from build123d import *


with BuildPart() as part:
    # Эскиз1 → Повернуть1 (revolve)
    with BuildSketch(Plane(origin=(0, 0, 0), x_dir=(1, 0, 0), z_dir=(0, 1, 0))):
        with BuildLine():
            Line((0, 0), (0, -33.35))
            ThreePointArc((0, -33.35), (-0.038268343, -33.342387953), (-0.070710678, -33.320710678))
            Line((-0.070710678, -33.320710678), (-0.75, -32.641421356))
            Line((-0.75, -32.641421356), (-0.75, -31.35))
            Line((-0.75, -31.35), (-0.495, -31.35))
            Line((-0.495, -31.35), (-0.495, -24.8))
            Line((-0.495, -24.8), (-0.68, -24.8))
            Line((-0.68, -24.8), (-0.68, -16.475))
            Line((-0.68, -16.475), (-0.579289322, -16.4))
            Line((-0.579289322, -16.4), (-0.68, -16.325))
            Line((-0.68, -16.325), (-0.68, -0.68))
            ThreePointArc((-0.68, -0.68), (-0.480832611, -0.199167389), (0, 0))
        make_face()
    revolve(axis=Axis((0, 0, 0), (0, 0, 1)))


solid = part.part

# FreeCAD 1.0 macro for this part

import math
import FreeCAD as App
import Part
import Sketcher

V = App.Vector
Q = App.Units.Quantity

doc = App.newDocument("Part")
body = doc.addObject("PartDesign::Body", "Body")

# Sketch on XZ plane
sketch1 = doc.addObject("Sketcher::SketchObject", "Sketch")
body.addObject(sketch1)
sketch1.AttachmentSupport = (doc.XZ_Plane, [""])
sketch1.MapMode = "FlatFace"
sketch1.addGeometry(Part.LineSegment(V(0, 33.35, 0), V(0, 0, 0)), False)
sketch1.addGeometry(Part.ArcOfCircle(Part.Circle(V(0, 0.68, 0), V(0, 0, 1), 0.68), math.radians(-180), math.radians(-90)), False)
sketch1.addGeometry(Part.LineSegment(V(-0.68, 0.68, 0), V(-0.68, 16.325, 0)), False)
sketch1.addGeometry(Part.LineSegment(V(-0.68, 16.325, 0), V(-0.579289, 16.4, 0)), False)
sketch1.addGeometry(Part.LineSegment(V(-0.579289, 16.4, 0), V(-0.68, 16.475, 0)), False)
sketch1.addGeometry(Part.LineSegment(V(-0.68, 16.475, 0), V(-0.68, 24.8, 0)), False)
sketch1.addGeometry(Part.LineSegment(V(-0.68, 24.8, 0), V(-0.495, 24.8, 0)), False)
sketch1.addGeometry(Part.LineSegment(V(-0.495, 24.8, 0), V(-0.495, 31.35, 0)), False)
sketch1.addGeometry(Part.LineSegment(V(-0.495, 31.35, 0), V(-0.75, 31.35, 0)), False)
sketch1.addGeometry(Part.LineSegment(V(-0.75, 31.35, 0), V(-0.75, 32.641421, 0)), False)
sketch1.addGeometry(Part.LineSegment(V(-0.75, 32.641421, 0), V(-0.070711, 33.320711, 0)), False)
sketch1.addGeometry(Part.ArcOfCircle(Part.Circle(V(0, 33.25, 0), V(0, 0, 1), 0.1), math.radians(90.000001), math.radians(134.999999)), False)
sketch1.addConstraint(Sketcher.Constraint("Coincident", 0, 2, 1, 2))
sketch1.addConstraint(Sketcher.Constraint("Tangent", 1, 1, 2, 1))
sketch1.addConstraint(Sketcher.Constraint("Coincident", 2, 2, 3, 1))
sketch1.addConstraint(Sketcher.Constraint("Coincident", 3, 2, 4, 1))
sketch1.addConstraint(Sketcher.Constraint("Coincident", 4, 2, 5, 1))
sketch1.addConstraint(Sketcher.Constraint("Coincident", 5, 2, 6, 1))
sketch1.addConstraint(Sketcher.Constraint("Coincident", 6, 2, 7, 1))
sketch1.addConstraint(Sketcher.Constraint("Coincident", 7, 2, 8, 1))
sketch1.addConstraint(Sketcher.Constraint("Coincident", 8, 2, 9, 1))
sketch1.addConstraint(Sketcher.Constraint("Coincident", 9, 2, 10, 1))
sketch1.addConstraint(Sketcher.Constraint("Tangent", 10, 2, 11, 2))
sketch1.addConstraint(Sketcher.Constraint("Coincident", 11, 1, 0, 1))
sketch1.addConstraint(Sketcher.Constraint("Vertical", 0))
sketch1.addConstraint(Sketcher.Constraint("Vertical", 2))
sketch1.addConstraint(Sketcher.Constraint("Vertical", 5))
sketch1.addConstraint(Sketcher.Constraint("Horizontal", 6))
sketch1.addConstraint(Sketcher.Constraint("Vertical", 7))
sketch1.addConstraint(Sketcher.Constraint("Horizontal", 8))
sketch1.addConstraint(Sketcher.Constraint("Vertical", 9))
sketch1.addConstraint(Sketcher.Constraint("Coincident", 0, 2, -1, 1))
sketch1.addConstraint(Sketcher.Constraint("PointOnObject", 1, 3, -2))
sketch1.addConstraint(Sketcher.Constraint("PointOnObject", 11, 3, -2))
sketch1.addConstraint(Sketcher.Constraint("Vertical", 2, 2, 4, 2))
sketch1.addConstraint(Sketcher.Constraint("Equal", 3, 4))
sketch1.addConstraint(Sketcher.Constraint("Radius", 11, 0.1))
sketch1.addConstraint(Sketcher.Constraint("Angle", 10, Q("45 deg")))
sketch1.addConstraint(Sketcher.Constraint("Radius", 1, 0.68))
sketch1.addConstraint(Sketcher.Constraint("DistanceY", 7, 2, 11, 1, 2.0))
sketch1.addConstraint(Sketcher.Constraint("DistanceY", 0, 2, 0, 1, 33.35))
sketch1.addConstraint(Sketcher.Constraint("DistanceY", 7, 1, 7, 2, 6.55))
sketch1.addConstraint(Sketcher.Constraint("DistanceY", -1, 1, 3, 2, 16.4))
sketch1.addConstraint(Sketcher.Constraint("DistanceX", 6, 1, 6, 2, 0.185))
sketch1.addConstraint(Sketcher.Constraint("DistanceX", 8, 2, 8, 1, 0.255))
sketch1.addConstraint(Sketcher.Constraint("DistanceY", 2, 1, 2, 2, 15.645))
sketch1.addConstraint(Sketcher.Constraint("Distance", 3, 0.125569))
revolution = doc.addObject("PartDesign::Revolution", "Revolution")
body.addObject(revolution)
revolution.Profile = sketch1
revolution.ReferenceAxis = (sketch1, ["V_Axis"])
revolution.Angle = 360

doc.recompute()
